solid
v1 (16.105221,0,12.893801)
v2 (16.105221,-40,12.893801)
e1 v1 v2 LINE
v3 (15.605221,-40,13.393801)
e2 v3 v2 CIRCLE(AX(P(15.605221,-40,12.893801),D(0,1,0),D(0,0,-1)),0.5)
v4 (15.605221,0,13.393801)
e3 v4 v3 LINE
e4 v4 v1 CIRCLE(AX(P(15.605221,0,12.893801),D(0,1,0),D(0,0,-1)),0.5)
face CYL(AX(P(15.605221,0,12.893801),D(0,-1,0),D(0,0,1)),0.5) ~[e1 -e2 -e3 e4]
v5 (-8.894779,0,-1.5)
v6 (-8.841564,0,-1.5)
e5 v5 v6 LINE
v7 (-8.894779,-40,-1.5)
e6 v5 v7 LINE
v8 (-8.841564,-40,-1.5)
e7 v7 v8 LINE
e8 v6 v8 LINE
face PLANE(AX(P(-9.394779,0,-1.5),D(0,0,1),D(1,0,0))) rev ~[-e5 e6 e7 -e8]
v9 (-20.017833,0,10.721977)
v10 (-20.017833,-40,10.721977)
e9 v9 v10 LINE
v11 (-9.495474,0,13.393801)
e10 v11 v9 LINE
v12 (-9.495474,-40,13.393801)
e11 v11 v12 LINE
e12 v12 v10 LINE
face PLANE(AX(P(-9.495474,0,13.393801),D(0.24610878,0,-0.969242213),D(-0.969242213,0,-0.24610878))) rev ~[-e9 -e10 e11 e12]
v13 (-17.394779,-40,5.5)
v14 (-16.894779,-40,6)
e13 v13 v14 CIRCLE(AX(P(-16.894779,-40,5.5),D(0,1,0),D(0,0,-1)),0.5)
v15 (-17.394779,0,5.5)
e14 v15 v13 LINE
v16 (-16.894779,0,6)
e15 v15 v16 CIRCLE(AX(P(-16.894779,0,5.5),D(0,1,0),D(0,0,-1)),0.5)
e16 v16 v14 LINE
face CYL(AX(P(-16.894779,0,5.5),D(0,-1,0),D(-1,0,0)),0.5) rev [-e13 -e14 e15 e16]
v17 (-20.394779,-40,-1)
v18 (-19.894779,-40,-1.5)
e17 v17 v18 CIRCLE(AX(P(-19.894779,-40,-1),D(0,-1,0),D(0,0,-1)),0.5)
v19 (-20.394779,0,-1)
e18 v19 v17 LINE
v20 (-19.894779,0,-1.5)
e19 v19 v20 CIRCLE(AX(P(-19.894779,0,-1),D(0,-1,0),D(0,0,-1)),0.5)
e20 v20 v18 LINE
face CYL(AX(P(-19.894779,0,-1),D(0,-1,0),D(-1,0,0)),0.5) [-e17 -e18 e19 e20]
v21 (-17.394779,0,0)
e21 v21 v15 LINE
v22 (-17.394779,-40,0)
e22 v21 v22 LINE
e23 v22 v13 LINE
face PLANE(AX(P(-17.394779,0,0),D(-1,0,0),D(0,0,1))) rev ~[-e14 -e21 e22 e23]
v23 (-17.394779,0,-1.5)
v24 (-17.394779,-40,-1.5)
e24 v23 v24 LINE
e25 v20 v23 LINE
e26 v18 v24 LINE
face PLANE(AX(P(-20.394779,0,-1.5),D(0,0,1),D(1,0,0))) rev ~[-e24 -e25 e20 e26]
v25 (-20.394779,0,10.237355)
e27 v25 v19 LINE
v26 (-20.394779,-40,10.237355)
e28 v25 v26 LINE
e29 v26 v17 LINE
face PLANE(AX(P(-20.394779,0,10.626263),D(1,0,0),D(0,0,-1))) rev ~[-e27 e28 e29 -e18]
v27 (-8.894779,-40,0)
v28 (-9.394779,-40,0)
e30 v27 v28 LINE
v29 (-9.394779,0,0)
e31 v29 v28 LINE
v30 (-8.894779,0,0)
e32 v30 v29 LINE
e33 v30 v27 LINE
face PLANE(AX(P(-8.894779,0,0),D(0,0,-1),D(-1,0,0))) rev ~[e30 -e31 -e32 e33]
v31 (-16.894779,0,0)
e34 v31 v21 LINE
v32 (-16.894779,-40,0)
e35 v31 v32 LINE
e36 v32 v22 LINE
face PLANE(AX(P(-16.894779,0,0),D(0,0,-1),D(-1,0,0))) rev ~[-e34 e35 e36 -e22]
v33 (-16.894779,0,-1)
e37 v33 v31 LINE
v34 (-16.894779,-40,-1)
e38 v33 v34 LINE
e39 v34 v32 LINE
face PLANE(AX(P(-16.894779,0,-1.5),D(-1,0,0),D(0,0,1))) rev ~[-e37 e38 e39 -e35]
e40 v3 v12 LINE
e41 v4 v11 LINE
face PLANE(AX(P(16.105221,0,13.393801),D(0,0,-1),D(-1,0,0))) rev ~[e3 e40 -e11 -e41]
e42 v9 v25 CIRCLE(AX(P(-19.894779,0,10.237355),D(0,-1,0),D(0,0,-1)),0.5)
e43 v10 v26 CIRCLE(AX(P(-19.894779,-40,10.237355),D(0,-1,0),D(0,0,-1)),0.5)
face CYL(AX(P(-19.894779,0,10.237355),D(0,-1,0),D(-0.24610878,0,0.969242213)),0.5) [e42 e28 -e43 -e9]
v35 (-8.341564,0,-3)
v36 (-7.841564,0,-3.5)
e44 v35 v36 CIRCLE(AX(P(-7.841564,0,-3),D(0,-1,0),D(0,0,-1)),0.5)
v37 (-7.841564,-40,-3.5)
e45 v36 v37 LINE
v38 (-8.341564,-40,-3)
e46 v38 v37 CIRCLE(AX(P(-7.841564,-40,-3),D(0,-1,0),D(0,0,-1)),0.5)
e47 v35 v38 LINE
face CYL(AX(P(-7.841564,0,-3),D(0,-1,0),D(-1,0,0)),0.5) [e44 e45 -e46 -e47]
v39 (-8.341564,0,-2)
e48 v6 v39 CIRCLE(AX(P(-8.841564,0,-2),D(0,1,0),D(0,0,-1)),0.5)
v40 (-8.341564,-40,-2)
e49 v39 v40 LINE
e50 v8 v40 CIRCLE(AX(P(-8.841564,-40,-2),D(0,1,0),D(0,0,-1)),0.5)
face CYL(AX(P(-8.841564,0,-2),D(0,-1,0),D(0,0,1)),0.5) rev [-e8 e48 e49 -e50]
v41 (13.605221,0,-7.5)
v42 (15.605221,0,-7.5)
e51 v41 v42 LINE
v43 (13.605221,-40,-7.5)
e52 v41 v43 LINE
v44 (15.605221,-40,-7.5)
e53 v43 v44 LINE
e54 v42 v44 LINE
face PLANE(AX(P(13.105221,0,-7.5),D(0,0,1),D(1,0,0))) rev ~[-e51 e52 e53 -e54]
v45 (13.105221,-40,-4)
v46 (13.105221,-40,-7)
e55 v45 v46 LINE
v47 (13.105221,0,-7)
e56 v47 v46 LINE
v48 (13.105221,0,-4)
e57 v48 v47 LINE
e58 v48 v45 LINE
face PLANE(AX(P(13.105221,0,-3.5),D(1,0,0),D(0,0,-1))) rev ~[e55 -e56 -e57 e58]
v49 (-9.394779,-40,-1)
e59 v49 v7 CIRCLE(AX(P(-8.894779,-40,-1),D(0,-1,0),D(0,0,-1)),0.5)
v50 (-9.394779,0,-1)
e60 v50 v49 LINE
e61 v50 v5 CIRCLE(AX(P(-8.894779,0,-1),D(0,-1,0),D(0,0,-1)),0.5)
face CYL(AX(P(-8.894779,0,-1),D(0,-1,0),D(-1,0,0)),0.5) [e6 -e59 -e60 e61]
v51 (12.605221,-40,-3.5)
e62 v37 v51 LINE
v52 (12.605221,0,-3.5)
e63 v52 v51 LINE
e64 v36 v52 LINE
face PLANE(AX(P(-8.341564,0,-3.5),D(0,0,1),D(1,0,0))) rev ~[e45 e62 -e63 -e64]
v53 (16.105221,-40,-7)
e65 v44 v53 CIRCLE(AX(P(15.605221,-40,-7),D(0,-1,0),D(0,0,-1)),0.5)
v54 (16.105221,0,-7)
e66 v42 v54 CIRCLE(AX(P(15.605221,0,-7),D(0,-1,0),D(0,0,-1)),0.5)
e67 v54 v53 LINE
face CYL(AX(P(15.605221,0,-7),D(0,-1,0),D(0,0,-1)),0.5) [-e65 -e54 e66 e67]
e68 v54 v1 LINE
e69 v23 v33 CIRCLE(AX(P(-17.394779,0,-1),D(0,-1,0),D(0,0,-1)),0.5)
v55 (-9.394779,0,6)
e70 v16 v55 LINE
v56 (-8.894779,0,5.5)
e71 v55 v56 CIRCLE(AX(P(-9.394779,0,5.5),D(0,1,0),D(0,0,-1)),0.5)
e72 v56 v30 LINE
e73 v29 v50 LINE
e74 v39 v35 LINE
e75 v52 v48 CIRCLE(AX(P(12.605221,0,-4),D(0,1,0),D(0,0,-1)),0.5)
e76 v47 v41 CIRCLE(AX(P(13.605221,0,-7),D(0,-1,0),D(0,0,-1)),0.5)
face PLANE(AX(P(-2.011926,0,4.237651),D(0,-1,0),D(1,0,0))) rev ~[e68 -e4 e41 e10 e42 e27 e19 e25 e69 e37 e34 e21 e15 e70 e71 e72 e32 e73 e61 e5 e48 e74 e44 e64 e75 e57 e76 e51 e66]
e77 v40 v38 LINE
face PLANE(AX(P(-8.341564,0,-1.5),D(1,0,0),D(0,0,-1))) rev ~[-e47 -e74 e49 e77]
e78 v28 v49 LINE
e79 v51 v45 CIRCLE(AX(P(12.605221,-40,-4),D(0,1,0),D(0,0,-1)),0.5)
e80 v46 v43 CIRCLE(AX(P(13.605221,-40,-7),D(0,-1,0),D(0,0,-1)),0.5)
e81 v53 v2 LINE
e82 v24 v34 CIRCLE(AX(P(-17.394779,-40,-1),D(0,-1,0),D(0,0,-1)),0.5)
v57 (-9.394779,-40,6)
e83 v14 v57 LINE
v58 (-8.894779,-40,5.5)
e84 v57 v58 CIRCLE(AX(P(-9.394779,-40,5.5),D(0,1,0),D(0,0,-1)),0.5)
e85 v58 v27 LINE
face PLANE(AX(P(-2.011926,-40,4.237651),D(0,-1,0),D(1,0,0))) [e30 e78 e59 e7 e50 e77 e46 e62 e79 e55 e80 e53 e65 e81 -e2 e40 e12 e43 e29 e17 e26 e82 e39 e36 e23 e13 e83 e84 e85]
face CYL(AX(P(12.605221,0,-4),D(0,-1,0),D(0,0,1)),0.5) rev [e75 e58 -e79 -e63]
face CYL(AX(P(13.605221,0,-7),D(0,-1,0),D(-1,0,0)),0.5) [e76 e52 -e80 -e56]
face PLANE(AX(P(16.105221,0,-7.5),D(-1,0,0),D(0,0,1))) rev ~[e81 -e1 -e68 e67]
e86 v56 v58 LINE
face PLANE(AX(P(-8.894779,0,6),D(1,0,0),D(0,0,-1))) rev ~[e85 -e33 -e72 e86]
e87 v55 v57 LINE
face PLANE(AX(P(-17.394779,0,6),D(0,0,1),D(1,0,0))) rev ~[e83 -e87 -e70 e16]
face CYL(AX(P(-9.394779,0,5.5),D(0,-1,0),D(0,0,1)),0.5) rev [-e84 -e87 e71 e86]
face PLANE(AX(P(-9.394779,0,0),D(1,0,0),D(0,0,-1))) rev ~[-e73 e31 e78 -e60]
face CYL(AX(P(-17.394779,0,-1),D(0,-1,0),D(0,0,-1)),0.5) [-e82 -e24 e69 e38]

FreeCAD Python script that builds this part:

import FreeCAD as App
import Part
import Sketcher
from FreeCAD import Vector


def edges_at(feature, points):
    """Names of the edges that pass closest to the given points."""
    edges = feature.Shape.Edges
    near = lambda p: min(range(len(edges)), key=lambda i: edges[i].distToShape(Part.Vertex(*p))[0])
    return sorted({f"Edge{near(p) + 1}" for p in points})

doc = App.newDocument("Part")
body = doc.addObject("PartDesign::Body", "Body")

sketch1 = body.newObject("Sketcher::SketchObject", "Sketch")
sketch1.AttachmentSupport = (doc.getObject("XZ_Plane"), [""])
sketch1.MapMode = "FlatFace"
sketch1.addGeometry(Part.LineSegment(Vector(16.105221, 13.393801, 0), Vector(-9.495474, 13.393801, 0)), False)
sketch1.addGeometry(Part.LineSegment(Vector(-9.495474, 13.393801, 0), Vector(-20.394779, 10.626263, 0)), False)
sketch1.addGeometry(Part.LineSegment(Vector(-20.394779, 10.626263, 0), Vector(-20.394779, -1.5, 0)), False)
sketch1.addGeometry(Part.LineSegment(Vector(-20.394779, -1.5, 0), Vector(-16.894779, -1.5, 0)), False)
sketch1.addGeometry(Part.LineSegment(Vector(-16.894779, -1.5, 0), Vector(-16.894779, 0, 0)), False)
sketch1.addGeometry(Part.LineSegment(Vector(-16.894779, 0, 0), Vector(-17.394779, 0, 0)), False)
sketch1.addGeometry(Part.LineSegment(Vector(-17.394779, 0, 0), Vector(-17.394779, 6, 0)), False)
sketch1.addGeometry(Part.LineSegment(Vector(-17.394779, 6, 0), Vector(-8.894779, 6, 0)), False)
sketch1.addGeometry(Part.LineSegment(Vector(-8.894779, 6, 0), Vector(-8.894779, 0, 0)), False)
sketch1.addGeometry(Part.LineSegment(Vector(-8.894779, 0, 0), Vector(-9.394779, 0, 0)), False)
sketch1.addGeometry(Part.LineSegment(Vector(-9.394779, 0, 0), Vector(-9.394779, -1.5, 0)), False)
sketch1.addGeometry(Part.LineSegment(Vector(-9.394779, -1.5, 0), Vector(-8.341564, -1.5, 0)), False)
sketch1.addGeometry(Part.LineSegment(Vector(-8.341564, -1.5, 0), Vector(-8.341564, -3.5, 0)), False)
sketch1.addGeometry(Part.LineSegment(Vector(-8.341564, -3.5, 0), Vector(13.105221, -3.5, 0)), False)
sketch1.addGeometry(Part.LineSegment(Vector(13.105221, -3.5, 0), Vector(13.105221, -7.5, 0)), False)
sketch1.addGeometry(Part.LineSegment(Vector(13.105221, -7.5, 0), Vector(16.105221, -7.5, 0)), False)
sketch1.addGeometry(Part.LineSegment(Vector(16.105221, -7.5, 0), Vector(16.105221, 13.393801, 0)), False)
sketch1.addConstraint(Sketcher.Constraint("Coincident", 0, 2, 1, 1))
sketch1.addConstraint(Sketcher.Constraint("Coincident", 1, 2, 2, 1))
sketch1.addConstraint(Sketcher.Constraint("Coincident", 2, 2, 3, 1))
sketch1.addConstraint(Sketcher.Constraint("Coincident", 3, 2, 4, 1))
sketch1.addConstraint(Sketcher.Constraint("Coincident", 4, 2, 5, 1))
sketch1.addConstraint(Sketcher.Constraint("Coincident", 5, 2, 6, 1))
sketch1.addConstraint(Sketcher.Constraint("Coincident", 6, 2, 7, 1))
sketch1.addConstraint(Sketcher.Constraint("Coincident", 7, 2, 8, 1))
sketch1.addConstraint(Sketcher.Constraint("Coincident", 8, 2, 9, 1))
sketch1.addConstraint(Sketcher.Constraint("Coincident", 9, 2, 10, 1))
sketch1.addConstraint(Sketcher.Constraint("Coincident", 10, 2, 11, 1))
sketch1.addConstraint(Sketcher.Constraint("Coincident", 11, 2, 12, 1))
sketch1.addConstraint(Sketcher.Constraint("Coincident", 12, 2, 13, 1))
sketch1.addConstraint(Sketcher.Constraint("Coincident", 13, 2, 14, 1))
sketch1.addConstraint(Sketcher.Constraint("Coincident", 14, 2, 15, 1))
sketch1.addConstraint(Sketcher.Constraint("Coincident", 15, 2, 16, 1))
sketch1.addConstraint(Sketcher.Constraint("Coincident", 16, 2, 0, 1))
sketch1.addConstraint(Sketcher.Constraint("Horizontal", 0))
sketch1.addConstraint(Sketcher.Constraint("Vertical", 2))
sketch1.addConstraint(Sketcher.Constraint("Horizontal", 3))
sketch1.addConstraint(Sketcher.Constraint("Vertical", 4))
sketch1.addConstraint(Sketcher.Constraint("Horizontal", 5))
sketch1.addConstraint(Sketcher.Constraint("Vertical", 6))
sketch1.addConstraint(Sketcher.Constraint("Horizontal", 7))
sketch1.addConstraint(Sketcher.Constraint("Vertical", 8))
sketch1.addConstraint(Sketcher.Constraint("Horizontal", 9))
sketch1.addConstraint(Sketcher.Constraint("Vertical", 10))
sketch1.addConstraint(Sketcher.Constraint("Horizontal", 11))
sketch1.addConstraint(Sketcher.Constraint("Vertical", 12))
sketch1.addConstraint(Sketcher.Constraint("Horizontal", 13))
sketch1.addConstraint(Sketcher.Constraint("Vertical", 14))
sketch1.addConstraint(Sketcher.Constraint("Horizontal", 15))
sketch1.addConstraint(Sketcher.Constraint("Vertical", 16))
sketch1.addConstraint(Sketcher.Constraint("PointOnObject", 4, 2, -1))
sketch1.addConstraint(Sketcher.Constraint("PointOnObject", 8, 2, -1))
sketch1.addConstraint(Sketcher.Constraint("Horizontal", 3, 2, 10, 2))
sketch1.addConstraint(Sketcher.Constraint("Equal", 5, 9))
sketch1.addConstraint(Sketcher.Constraint("DistanceX", 15, 1, 15, 2, 3.0))
sketch1.addConstraint(Sketcher.Constraint("DistanceY", 6, 1, 6, 2, 6.0))
sketch1.addConstraint(Sketcher.Constraint("DistanceY", 12, 2, 12, 1, 2.0))
sketch1.addConstraint(Sketcher.Constraint("DistanceY", 14, 2, 14, 1, 4.0))
sketch1.addConstraint(Sketcher.Constraint("DistanceX", 3, 1, 3, 2, 3.5))
sketch1.addConstraint(Sketcher.Constraint("DistanceX", 5, 2, 5, 1, 0.5))
sketch1.addConstraint(Sketcher.Constraint("DistanceX", 7, 1, 7, 2, 8.5))
sketch1.addConstraint(Sketcher.Constraint("DistanceY", 4, 1, 4, 2, 1.5))
sketch1.addConstraint(Sketcher.Constraint("DistanceX", 8, 2, 13, 2, 22.0))
sketch1.addConstraint(Sketcher.Constraint("DistanceY", 16, 1, 16, 2, 20.893801))
sketch1.addConstraint(Sketcher.Constraint("Distance", 1, 11.245182))
sketch1.addConstraint(Sketcher.Constraint("DistanceX", 0, 2, 0, 1, 25.600695))
sketch1.addConstraint(Sketcher.Constraint("DistanceX", 11, 1, 11, 2, 1.053215))
sketch1.addConstraint(Sketcher.Constraint("DistanceX", 1, 2, -1, 1, 20.394779))
pad1 = body.newObject("PartDesign::Pad", "Pad")
pad1.Profile = sketch1
pad1.Length = 40
doc.recompute()

fillet = body.newObject("PartDesign::Fillet", "Fillet")
fillet.Base = (pad1, edges_at(pad1, [
    (-16.895, -20, -1.5),
    (-8.342, -20, -3.5),
    (13.105, -20, -7.5),
    (16.105, -20, -7.5),
    (16.105, -20, 13.394),
    (-20.395, -20, -1.5),
    (-20.395, -20, 10.626),
    (-17.395, -20, 6),
    (-8.895, -20, 6),
    (13.105, -20, -3.5),
    (-8.342, -20, -1.5),
    (-9.395, -20, -1.5),
]))
fillet.Radius = 0.5

doc.recompute()
